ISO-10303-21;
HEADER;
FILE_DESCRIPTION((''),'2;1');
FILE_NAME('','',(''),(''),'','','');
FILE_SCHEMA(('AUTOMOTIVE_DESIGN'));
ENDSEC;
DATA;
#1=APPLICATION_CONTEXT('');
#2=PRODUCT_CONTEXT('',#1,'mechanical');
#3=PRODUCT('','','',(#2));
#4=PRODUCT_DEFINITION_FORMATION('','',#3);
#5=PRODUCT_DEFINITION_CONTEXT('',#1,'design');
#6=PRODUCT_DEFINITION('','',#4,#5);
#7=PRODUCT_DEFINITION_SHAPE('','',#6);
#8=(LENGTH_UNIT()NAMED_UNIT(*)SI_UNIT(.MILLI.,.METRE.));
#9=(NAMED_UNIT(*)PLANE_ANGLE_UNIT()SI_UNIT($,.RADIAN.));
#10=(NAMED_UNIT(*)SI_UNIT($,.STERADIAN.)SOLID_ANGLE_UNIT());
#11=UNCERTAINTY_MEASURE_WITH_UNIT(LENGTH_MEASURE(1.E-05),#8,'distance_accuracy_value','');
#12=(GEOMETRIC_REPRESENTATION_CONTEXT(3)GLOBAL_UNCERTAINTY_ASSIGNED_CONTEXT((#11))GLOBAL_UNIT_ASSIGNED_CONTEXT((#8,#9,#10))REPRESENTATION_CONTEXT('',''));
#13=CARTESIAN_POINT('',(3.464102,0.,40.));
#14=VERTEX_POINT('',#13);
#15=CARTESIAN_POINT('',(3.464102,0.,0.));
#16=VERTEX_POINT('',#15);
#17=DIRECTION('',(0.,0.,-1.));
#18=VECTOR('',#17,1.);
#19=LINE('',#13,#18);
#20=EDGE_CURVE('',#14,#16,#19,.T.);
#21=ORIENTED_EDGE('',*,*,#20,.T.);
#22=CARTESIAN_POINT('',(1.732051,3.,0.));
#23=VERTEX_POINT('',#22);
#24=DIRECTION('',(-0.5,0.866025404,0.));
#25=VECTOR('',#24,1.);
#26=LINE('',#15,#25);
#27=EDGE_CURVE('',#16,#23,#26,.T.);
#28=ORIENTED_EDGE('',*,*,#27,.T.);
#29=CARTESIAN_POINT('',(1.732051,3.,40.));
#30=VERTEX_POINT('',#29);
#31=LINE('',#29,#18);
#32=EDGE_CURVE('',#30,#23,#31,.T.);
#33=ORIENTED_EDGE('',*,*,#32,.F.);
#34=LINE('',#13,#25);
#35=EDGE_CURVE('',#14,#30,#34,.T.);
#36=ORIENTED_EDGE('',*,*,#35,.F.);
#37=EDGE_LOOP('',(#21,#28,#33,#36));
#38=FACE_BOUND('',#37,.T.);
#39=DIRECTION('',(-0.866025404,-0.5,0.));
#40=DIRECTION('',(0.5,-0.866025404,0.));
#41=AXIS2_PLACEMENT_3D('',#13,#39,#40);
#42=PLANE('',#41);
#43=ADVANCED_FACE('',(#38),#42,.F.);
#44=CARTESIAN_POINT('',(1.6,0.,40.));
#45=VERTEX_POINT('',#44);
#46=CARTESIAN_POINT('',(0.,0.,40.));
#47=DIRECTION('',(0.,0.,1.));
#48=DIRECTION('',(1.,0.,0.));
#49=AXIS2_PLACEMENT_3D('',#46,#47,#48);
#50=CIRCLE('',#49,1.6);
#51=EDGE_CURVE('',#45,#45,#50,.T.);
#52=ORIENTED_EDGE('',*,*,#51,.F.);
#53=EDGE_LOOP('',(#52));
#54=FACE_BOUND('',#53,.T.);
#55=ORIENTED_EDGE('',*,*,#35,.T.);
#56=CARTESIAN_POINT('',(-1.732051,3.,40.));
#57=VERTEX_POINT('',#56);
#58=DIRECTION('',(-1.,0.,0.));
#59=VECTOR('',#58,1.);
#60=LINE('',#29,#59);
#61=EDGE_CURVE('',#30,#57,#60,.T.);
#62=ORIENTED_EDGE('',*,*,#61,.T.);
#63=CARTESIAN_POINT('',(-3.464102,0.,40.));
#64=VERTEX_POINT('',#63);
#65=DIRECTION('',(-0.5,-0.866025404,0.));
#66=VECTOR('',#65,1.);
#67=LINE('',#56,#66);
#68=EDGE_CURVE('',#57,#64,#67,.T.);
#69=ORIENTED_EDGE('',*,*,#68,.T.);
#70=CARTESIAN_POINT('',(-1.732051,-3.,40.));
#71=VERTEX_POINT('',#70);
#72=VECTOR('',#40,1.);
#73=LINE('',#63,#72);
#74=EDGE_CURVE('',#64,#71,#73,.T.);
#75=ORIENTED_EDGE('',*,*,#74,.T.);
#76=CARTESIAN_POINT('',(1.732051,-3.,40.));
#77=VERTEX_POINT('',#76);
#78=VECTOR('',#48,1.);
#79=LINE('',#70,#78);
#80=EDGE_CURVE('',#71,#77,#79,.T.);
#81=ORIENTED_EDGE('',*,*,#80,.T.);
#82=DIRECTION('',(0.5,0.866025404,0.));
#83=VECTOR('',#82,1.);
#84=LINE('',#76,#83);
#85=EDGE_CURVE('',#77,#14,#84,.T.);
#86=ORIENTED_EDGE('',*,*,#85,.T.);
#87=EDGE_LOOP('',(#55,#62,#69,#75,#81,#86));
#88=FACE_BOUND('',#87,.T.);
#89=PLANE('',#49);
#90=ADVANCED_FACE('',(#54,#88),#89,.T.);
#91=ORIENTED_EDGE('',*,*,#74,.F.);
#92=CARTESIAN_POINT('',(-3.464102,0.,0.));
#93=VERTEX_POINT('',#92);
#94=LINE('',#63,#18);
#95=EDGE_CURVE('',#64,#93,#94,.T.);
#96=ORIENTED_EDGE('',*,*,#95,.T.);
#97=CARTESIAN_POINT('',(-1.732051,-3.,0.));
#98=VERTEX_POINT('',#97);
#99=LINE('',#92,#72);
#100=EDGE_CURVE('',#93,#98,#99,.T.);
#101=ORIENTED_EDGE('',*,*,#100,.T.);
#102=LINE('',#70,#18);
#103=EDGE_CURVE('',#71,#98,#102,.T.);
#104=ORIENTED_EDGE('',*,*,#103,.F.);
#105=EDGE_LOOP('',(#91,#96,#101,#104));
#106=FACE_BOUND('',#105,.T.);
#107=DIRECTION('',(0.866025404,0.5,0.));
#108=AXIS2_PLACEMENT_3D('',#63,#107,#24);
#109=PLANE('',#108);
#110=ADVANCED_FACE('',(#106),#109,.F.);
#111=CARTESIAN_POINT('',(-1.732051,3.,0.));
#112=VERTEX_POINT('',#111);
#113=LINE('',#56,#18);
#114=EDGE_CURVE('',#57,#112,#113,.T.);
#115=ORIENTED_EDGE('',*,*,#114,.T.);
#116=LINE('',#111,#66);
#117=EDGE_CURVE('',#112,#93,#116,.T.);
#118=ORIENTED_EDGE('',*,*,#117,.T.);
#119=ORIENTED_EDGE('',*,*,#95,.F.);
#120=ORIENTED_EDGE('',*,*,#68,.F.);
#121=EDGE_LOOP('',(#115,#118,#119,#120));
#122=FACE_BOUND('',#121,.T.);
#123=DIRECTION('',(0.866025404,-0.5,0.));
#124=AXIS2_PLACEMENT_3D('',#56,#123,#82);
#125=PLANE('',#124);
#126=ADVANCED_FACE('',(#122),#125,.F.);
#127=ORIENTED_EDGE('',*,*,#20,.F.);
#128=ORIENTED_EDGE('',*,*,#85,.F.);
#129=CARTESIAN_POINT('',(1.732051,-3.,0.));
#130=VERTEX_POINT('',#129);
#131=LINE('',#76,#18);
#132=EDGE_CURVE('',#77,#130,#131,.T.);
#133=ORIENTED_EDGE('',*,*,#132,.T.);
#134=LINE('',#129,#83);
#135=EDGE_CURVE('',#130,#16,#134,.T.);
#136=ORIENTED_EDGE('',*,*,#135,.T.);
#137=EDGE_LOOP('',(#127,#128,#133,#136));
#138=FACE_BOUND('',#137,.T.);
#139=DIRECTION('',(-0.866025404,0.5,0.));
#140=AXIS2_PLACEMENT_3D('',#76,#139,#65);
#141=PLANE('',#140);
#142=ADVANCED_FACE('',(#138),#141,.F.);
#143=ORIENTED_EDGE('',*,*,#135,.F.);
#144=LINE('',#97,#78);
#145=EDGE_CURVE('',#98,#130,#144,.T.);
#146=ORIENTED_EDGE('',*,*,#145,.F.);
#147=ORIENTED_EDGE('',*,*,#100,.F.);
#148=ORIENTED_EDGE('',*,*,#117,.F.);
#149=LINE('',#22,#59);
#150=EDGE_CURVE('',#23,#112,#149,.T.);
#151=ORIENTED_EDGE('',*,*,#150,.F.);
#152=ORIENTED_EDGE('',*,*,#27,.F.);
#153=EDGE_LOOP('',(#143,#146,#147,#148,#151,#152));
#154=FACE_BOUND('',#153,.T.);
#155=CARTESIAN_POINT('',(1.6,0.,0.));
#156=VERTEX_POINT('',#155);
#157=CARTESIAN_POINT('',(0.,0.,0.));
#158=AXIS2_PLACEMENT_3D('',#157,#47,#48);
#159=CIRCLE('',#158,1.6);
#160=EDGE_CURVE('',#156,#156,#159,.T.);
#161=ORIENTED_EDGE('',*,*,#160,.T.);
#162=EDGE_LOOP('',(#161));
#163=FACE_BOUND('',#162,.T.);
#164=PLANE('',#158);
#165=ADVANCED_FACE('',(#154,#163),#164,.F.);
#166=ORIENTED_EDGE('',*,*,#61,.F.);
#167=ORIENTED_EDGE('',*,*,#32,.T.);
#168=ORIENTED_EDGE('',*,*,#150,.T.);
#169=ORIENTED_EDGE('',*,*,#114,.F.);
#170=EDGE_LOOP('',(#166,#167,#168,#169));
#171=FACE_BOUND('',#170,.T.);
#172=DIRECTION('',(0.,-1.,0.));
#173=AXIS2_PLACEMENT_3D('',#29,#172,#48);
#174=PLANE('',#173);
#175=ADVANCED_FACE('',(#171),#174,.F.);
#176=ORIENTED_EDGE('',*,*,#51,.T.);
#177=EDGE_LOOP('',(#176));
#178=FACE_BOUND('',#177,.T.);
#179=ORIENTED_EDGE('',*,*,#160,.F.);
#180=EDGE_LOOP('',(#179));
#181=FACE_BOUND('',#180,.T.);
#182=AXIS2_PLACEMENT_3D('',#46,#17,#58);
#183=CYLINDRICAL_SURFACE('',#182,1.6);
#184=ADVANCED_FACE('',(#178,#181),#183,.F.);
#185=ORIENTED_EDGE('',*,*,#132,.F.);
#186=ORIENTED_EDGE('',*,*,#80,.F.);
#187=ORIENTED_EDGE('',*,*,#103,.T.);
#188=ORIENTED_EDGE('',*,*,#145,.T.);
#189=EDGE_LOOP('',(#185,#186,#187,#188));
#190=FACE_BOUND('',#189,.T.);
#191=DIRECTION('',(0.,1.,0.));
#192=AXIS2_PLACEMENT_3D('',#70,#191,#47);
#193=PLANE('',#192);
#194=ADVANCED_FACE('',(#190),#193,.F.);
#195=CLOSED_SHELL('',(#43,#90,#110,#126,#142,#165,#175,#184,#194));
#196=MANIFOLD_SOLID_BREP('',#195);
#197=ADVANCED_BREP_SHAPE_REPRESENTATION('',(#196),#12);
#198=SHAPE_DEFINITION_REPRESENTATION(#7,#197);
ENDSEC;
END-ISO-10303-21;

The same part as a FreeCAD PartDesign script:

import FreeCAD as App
import Part
import Sketcher
Q = App.Units.Quantity


def add_polygon(sketch, points):
    """Adds a closed chain of lines whose ends are joined by coincident constraints."""
    first, n = sketch.GeometryCount, len(points)
    for a, b in zip(points, points[1:] + points[:1]):
        sketch.addGeometry(Part.LineSegment(App.Vector(*a, 0), App.Vector(*b, 0)), False)
    for i in range(n):
        sketch.addConstraint(Sketcher.Constraint("Coincident", first + i, 2, first + (i + 1) % n, 1))

doc = App.newDocument("Part")
body = doc.addObject("PartDesign::Body", "Body")

sketch1 = body.newObject("Sketcher::SketchObject", "Sketch")
sketch1.AttachmentSupport = (doc.getObject("XY_Plane"), [""])
sketch1.MapMode = "FlatFace"
add_polygon(sketch1, [(1.7, -3), (3.5, 0), (1.7, 3), (-1.7, 3), (-3.5, 0), (-1.7, -3)])
sketch1.addGeometry(Part.Circle(App.Vector(0, 0, 0), App.Vector(0, 0, 1), 1.6), False)
sketch1.addConstraint(Sketcher.Constraint("Horizontal", 2))
sketch1.addConstraint(Sketcher.Constraint("Horizontal", 5))
sketch1.addConstraint(Sketcher.Constraint("Coincident", 6, 3, -1, 1))
sketch1.addConstraint(Sketcher.Constraint("Symmetric", 0, 2, 3, 2, -1, 1))
sketch1.addConstraint(Sketcher.Constraint("Symmetric", 1, 2, 4, 2, -1, 1))
sketch1.addConstraint(Sketcher.Constraint("PointOnObject", 0, 2, -1))
sketch1.addConstraint(Sketcher.Constraint("Parallel", 0, 3))
sketch1.addConstraint(Sketcher.Constraint("Vertical", 2, 2, 4, 2))
sketch1.addConstraint(Sketcher.Constraint("Diameter", 6, Q("3.2 mm")))
sketch1.addConstraint(Sketcher.Constraint("Angle", 0, Q("60 deg")))
sketch1.addConstraint(Sketcher.Constraint("DistanceY", -1, 1, 1, 2, Q("3 mm")))
sketch1.addConstraint(Sketcher.Constraint("DistanceX", 2, 2, 2, 1, Q("3.464102 mm")))
pad1 = body.newObject("PartDesign::Pad", "Pad")
pad1.Profile = sketch1
pad1.Length = 40

doc.recompute()
